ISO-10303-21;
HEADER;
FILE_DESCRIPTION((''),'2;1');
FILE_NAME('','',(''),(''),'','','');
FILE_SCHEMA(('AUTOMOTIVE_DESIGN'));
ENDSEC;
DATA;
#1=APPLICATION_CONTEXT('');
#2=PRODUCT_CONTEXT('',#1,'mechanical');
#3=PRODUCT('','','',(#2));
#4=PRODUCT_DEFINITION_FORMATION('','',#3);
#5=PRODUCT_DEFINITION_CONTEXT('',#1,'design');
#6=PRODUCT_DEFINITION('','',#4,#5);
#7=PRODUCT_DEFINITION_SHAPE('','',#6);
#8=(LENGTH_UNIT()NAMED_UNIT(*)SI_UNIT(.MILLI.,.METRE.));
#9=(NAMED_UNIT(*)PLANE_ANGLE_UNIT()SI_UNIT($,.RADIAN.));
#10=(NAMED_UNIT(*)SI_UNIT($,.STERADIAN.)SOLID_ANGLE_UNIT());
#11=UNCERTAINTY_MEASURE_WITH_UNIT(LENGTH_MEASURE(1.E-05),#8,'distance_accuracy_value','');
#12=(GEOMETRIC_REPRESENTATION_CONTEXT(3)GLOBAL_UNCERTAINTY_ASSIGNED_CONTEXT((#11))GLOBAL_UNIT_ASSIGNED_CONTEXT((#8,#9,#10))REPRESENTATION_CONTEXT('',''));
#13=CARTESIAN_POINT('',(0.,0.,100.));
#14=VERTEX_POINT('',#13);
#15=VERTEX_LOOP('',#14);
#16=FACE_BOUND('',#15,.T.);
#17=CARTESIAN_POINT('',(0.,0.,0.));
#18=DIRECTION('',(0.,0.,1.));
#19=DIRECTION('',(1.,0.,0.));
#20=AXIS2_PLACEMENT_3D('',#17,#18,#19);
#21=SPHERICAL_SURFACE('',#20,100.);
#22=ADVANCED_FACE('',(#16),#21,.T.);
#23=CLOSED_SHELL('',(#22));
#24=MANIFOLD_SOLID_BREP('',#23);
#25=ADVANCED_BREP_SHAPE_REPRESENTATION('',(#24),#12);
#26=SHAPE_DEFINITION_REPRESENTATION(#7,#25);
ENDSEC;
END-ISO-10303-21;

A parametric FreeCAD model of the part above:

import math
import FreeCAD as App
import Part
import Sketcher
Q = App.Units.Quantity

doc = App.newDocument("Part")
params = doc.addObject("Spreadsheet::Sheet", "Params")
for row, (alias, value) in enumerate([
    ("sketch1_radius", "100 mm"),
    ("revolution_angle", "360 deg"),
], start=1):
    params.set(f"A{row}", alias)
    params.set(f"B{row}", "=" + value)
    params.setAlias(f"B{row}", alias)

body = doc.addObject("PartDesign::Body", "Body")

sketch1 = doc.addObject("Sketcher::SketchObject", "Sketch")
body.addObject(sketch1)
sketch1.AttachmentSupport = (doc.XZ_Plane, [""])
sketch1.MapMode = "FlatFace"
sketch1.addGeometry(Part.ArcOfCircle(Part.Circle(App.Vector(0, 0, 0), App.Vector(0, 0, 1), 100), math.radians(-90), math.radians(90)), False)
sketch1.addGeometry(Part.LineSegment(App.Vector(0, 100, 0), App.Vector(0, -100, 0)), False)
sketch1.addConstraint(Sketcher.Constraint("Coincident", 0, 1, 1, 2))
sketch1.addConstraint(Sketcher.Constraint("Coincident", 1, 1, 0, 2))
sketch1.addConstraint(Sketcher.Constraint("Vertical", 1))
sketch1.addConstraint(Sketcher.Constraint("Coincident", 0, 3, -1, 1))
sketch1.addConstraint(Sketcher.Constraint("PointOnObject", 0, 1, -2))
sketch1.addConstraint(Sketcher.Constraint("Radius", 0, Q("100 mm")))
sketch1.setExpression("Constraints[5]", "Params.sketch1_radius")
revolution = doc.addObject("PartDesign::Revolution", "Revolution")
body.addObject(revolution)
revolution.Profile = sketch1
revolution.ReferenceAxis = (sketch1, ["V_Axis"])
revolution.setExpression("Angle", "Params.revolution_angle")

doc.recompute()
